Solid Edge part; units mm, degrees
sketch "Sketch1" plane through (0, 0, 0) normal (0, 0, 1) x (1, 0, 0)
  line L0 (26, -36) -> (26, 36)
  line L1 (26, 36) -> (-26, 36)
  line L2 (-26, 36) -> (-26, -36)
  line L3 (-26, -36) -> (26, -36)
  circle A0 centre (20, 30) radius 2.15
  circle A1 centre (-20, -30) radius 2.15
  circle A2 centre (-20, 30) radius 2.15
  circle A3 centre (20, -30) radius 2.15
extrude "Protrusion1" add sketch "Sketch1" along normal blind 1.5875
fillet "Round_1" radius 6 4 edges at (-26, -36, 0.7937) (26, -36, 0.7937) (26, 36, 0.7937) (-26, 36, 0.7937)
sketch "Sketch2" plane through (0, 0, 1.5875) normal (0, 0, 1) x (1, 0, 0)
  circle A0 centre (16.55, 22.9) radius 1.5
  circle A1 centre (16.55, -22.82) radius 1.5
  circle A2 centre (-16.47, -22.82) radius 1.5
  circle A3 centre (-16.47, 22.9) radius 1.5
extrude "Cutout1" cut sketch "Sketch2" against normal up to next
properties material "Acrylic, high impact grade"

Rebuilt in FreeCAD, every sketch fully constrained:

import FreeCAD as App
import Part
import Sketcher

V = App.Vector


def edges_at(feature, points):
    """Names of the edges that pass closest to the given points."""
    edges = feature.Shape.Edges
    near = lambda p: min(range(len(edges)), key=lambda i: edges[i].distToShape(Part.Vertex(*p))[0])
    return sorted({f"Edge{near(p) + 1}" for p in points})

doc = App.newDocument("Part")
body = doc.addObject("PartDesign::Body", "Body")

# Sketch on XY plane
sketch1 = body.newObject("Sketcher::SketchObject", "Sketch")
sketch1.AttachmentSupport = (doc.getObject("XY_Plane"), [""])
sketch1.MapMode = "FlatFace"
sketch1.addGeometry([
    Part.LineSegment(V(-26, -36, 0), V(26, -36, 0)),  # 0
    Part.LineSegment(V(26, -36, 0), V(26, 36, 0)),  # 1
    Part.LineSegment(V(26, 36, 0), V(-26, 36, 0)),  # 2
    Part.LineSegment(V(-26, 36, 0), V(-26, -36, 0)),  # 3
    Part.Circle(V(-20, -30, 0), V(0, 0, 1), 2.1),  # 4
    Part.Circle(V(20, -30, 0), V(0, 0, 1), 2.1),  # 5
    Part.Circle(V(-20, 30, 0), V(0, 0, 1), 2.1),  # 6
    Part.Circle(V(20, 30, 0), V(0, 0, 1), 2.1),  # 7
], False)
sketch1.addConstraint([
    Sketcher.Constraint("Coincident", 0, 2, 1, 1),
    Sketcher.Constraint("Coincident", 1, 2, 2, 1),
    Sketcher.Constraint("Coincident", 2, 2, 3, 1),
    Sketcher.Constraint("Coincident", 3, 2, 0, 1),
    Sketcher.Constraint("Horizontal", 0),
    Sketcher.Constraint("Vertical", 1),
    Sketcher.Constraint("Horizontal", 2),
    Sketcher.Constraint("Vertical", 3),
    Sketcher.Constraint("Equal", 4, 5),
    Sketcher.Constraint("Equal", 5, 6),
    Sketcher.Constraint("Equal", 6, 7),
    Sketcher.Constraint("Symmetric", 5, 3, 6, 3, -1, 1),
    Sketcher.Constraint("Symmetric", 4, 3, 7, 3, -1, 1),
    Sketcher.Constraint("Symmetric", 0, 2, 2, 2, -1, 1),
    Sketcher.Constraint("Symmetric", 4, 3, 5, 3, -2),
    Sketcher.Constraint("Diameter", 4, 4.3),
    Sketcher.Constraint("DistanceX", 0, 1, 0, 2, 52.0),
    Sketcher.Constraint("DistanceY", 1, 1, 1, 2, 72.0),
    Sketcher.Constraint("DistanceX", 4, 3, -1, 1, 20.0),
    Sketcher.Constraint("DistanceY", 4, 3, -1, 1, 30.0),
])
pad1 = body.newObject("PartDesign::Pad", "Pad")
pad1.Profile = sketch1
pad1.Length = 1.5875
doc.recompute()

fillet = body.newObject("PartDesign::Fillet", "Fillet")
fillet.Base = (pad1, edges_at(pad1, [
    (-26, -36, 0.794),
    (26, -36, 0.794),
    (26, 36, 0.794),
    (-26, 36, 0.794),
]))
fillet.Radius = 6

# Sketch on XY plane
sketch2 = body.newObject("Sketcher::SketchObject", "Sketch001")
sketch2.AttachmentSupport = (doc.getObject("XY_Plane"), [""])
sketch2.MapMode = "FlatFace"
sketch2.AttachmentOffset = App.Placement(V(0, 0, 1.5875), App.Rotation())
sketch2.addGeometry([
    Part.Circle(V(16.6, 22.9, 0), V(0, 0, 1), 1.5),
    Part.Circle(V(16.6, -22.8, 0), V(0, 0, 1), 1.5),
    Part.Circle(V(-16.5, -22.8, 0), V(0, 0, 1), 1.5),
    Part.Circle(V(-16.5, 22.9, 0), V(0, 0, 1), 1.5),
], False)
sketch2.addConstraint([
    Sketcher.Constraint("Equal", 0, 1),
    Sketcher.Constraint("Equal", 1, 2),
    Sketcher.Constraint("Equal", 2, 3),
    Sketcher.Constraint("Horizontal", 1, 3, 2, 3),
    Sketcher.Constraint("Horizontal", 0, 3, 3, 3),
    Sketcher.Constraint("Vertical", 0, 3, 1, 3),
    Sketcher.Constraint("Vertical", 2, 3, 3, 3),
    Sketcher.Constraint("Diameter", 0, 3.0),
    Sketcher.Constraint("DistanceY", -1, 1, 0, 3, 22.9),
    Sketcher.Constraint("DistanceX", -1, 1, 0, 3, 16.55),
    Sketcher.Constraint("DistanceY", 1, 3, -1, 1, 22.82),
    Sketcher.Constraint("DistanceX", 2, 3, -1, 1, 16.47),
])
pocket1 = body.newObject("PartDesign::Pocket", "Pocket")
pocket1.Profile = sketch2
pocket1.Type = "UpToFirst"

doc.recompute()
